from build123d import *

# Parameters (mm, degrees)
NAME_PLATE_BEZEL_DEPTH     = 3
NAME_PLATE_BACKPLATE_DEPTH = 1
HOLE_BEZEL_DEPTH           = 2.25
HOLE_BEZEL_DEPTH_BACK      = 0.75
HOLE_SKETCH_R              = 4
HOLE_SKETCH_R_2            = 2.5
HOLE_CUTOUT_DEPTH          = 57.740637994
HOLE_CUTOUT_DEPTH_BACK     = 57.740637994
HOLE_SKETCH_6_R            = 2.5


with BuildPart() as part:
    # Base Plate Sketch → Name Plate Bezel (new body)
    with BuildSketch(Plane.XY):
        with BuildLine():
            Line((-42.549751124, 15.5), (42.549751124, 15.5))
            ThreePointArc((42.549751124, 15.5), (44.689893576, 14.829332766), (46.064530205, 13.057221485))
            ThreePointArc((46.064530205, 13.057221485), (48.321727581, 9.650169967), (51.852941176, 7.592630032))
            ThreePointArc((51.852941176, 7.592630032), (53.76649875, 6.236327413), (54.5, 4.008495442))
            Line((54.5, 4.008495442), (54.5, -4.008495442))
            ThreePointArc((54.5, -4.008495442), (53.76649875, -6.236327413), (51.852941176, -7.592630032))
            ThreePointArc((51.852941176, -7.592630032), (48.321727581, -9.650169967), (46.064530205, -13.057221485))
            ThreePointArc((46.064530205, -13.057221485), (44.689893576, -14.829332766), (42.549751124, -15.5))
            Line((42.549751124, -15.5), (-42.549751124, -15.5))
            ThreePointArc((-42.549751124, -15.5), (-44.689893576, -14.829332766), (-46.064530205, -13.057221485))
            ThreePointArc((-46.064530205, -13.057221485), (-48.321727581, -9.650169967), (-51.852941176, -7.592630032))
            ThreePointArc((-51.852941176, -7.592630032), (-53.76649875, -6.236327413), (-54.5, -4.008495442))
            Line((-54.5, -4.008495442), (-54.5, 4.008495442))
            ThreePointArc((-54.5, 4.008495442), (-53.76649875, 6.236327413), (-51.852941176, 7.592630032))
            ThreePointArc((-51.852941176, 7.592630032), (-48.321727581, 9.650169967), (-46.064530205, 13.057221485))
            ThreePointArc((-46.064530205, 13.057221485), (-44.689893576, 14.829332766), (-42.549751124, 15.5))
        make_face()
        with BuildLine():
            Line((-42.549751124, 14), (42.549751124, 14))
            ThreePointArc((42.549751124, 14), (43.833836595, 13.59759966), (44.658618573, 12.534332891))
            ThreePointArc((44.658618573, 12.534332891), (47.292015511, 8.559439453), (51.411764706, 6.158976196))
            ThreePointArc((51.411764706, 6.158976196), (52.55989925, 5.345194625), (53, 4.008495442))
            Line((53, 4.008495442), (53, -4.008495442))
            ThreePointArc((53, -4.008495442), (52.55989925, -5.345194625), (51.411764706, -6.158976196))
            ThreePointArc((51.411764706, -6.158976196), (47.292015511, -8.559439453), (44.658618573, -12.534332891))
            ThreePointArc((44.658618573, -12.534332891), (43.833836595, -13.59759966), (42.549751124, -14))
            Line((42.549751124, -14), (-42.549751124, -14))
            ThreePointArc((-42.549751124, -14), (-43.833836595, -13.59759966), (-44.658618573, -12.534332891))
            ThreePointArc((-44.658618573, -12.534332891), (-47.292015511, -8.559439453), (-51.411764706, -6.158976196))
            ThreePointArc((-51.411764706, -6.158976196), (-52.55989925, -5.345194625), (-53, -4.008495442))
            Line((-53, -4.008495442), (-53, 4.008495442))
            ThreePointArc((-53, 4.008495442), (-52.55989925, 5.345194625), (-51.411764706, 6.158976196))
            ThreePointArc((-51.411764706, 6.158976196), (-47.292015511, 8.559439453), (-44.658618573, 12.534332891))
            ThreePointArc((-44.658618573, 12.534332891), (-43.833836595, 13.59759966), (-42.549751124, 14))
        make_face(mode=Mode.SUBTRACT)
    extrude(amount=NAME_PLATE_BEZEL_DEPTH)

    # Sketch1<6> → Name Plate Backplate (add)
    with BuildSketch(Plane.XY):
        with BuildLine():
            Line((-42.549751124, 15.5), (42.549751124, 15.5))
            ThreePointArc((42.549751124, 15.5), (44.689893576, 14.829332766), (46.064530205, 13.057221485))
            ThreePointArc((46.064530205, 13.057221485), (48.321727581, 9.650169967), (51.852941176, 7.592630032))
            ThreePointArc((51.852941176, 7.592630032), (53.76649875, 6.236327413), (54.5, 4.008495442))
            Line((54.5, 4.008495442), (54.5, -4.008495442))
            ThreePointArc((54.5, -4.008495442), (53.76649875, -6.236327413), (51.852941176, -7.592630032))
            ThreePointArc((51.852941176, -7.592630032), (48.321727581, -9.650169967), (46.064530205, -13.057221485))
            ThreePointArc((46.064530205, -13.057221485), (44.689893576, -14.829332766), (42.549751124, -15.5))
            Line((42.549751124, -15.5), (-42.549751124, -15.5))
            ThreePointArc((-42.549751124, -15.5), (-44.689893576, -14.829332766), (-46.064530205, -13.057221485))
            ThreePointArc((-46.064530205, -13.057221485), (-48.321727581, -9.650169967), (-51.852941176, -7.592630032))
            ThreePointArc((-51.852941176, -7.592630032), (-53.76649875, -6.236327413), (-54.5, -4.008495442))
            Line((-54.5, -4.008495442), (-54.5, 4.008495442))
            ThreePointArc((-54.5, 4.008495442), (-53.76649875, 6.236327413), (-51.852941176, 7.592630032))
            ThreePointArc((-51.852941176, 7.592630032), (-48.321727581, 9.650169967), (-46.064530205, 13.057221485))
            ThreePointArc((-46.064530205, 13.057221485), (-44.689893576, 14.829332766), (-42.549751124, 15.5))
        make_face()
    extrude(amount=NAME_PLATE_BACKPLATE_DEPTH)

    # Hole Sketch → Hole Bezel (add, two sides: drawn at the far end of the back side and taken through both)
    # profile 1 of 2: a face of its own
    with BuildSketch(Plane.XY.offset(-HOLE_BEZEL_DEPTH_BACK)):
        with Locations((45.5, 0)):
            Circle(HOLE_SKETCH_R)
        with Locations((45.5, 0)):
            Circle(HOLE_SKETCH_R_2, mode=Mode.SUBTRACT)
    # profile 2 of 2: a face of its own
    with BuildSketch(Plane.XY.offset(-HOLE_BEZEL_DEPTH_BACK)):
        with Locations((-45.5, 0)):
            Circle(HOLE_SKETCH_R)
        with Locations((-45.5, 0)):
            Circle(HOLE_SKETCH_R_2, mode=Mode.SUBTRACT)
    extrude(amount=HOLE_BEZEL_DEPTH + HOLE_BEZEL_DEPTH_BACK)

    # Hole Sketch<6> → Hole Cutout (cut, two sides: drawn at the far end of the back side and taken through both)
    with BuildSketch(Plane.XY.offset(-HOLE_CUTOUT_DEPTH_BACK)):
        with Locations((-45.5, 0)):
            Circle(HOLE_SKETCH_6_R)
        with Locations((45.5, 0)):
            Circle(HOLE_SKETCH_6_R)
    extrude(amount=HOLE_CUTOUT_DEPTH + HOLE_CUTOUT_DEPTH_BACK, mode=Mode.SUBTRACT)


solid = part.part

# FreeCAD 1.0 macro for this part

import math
import FreeCAD as App
import Part
import Sketcher
from FreeCAD import Vector
Q = App.Units.Quantity

doc = App.newDocument("Part")
params = doc.addObject("Spreadsheet::Sheet", "Params")
for row, (alias, value) in enumerate([
    ("sketch1_radius", "9 mm"),
    ("sketch1_radius2", "10.5 mm"),
    ("sketch1_radius3", "3.75 mm"),
    ("pad1_length", "3 mm"),
    ("sketch2_radius", "9 mm"),
    ("sketch2_radius2", "3.75 mm"),
    ("pad2_length", "1 mm"),
    ("sketch3_diameter", "8 mm"),
    ("sketch3_diameter2", "5 mm"),
    ("pad3_length", "2.25 mm"),
    ("pad3_length2", "0.75 mm"),
    ("sketch4_diameter", "5 mm"),
], start=1):
    params.set(f"A{row}", alias)
    params.set(f"B{row}", "=" + value)
    params.setAlias(f"B{row}", alias)

body = doc.addObject("PartDesign::Body", "Body")

# Sketch on XY plane
sketch1 = body.newObject("Sketcher::SketchObject", "Sketch")
sketch1.AttachmentSupport = (doc.getObject("XY_Plane"), [""])
sketch1.MapMode = "FlatFace"
sketch1.addGeometry([
    Part.LineSegment(Vector(42.5, 15.5, 0), Vector(-42.5, 15.5, 0)),  # 0
    Part.ArcOfCircle(Part.Circle(Vector(-42.5, 11.7, 0), Vector(0, 0, 1), 3.8), math.radians(90), math.radians(160)),  # 1
    Part.ArcOfCircle(Part.Circle(Vector(-54.5, 16.2, 0), Vector(0, 0, 1), 9), math.radians(-73), math.radians(-20)),  # 2
    Part.ArcOfCircle(Part.Circle(Vector(-50.8, 4, 0), Vector(0, 0, 1), 3.7), math.radians(107), math.radians(180)),  # 3
    Part.LineSegment(Vector(-54.5, 4, 0), Vector(-54.5, -4, 0)),  # 4
    Part.ArcOfCircle(Part.Circle(Vector(-50.8, -4, 0), Vector(0, 0, 1), 3.7), math.radians(180), math.radians(253)),  # 5
    Part.ArcOfCircle(Part.Circle(Vector(-54.5, -16.2, 0), Vector(0, 0, 1), 9), math.radians(20), math.radians(73)),  # 6
    Part.ArcOfCircle(Part.Circle(Vector(-42.5, -11.7, 0), Vector(0, 0, 1), 3.8), math.radians(-160), math.radians(-90)),  # 7
    Part.LineSegment(Vector(-42.5, -15.5, 0), Vector(42.5, -15.5, 0)),  # 8
    Part.ArcOfCircle(Part.Circle(Vector(42.5, -11.7, 0), Vector(0, 0, 1), 3.8), math.radians(-90), math.radians(-20)),  # 9
    Part.ArcOfCircle(Part.Circle(Vector(54.5, -16.2, 0), Vector(0, 0, 1), 9), math.radians(107), math.radians(160)),  # 10
    Part.ArcOfCircle(Part.Circle(Vector(50.8, -4, 0), Vector(0, 0, 1), 3.7), math.radians(-73), math.radians(0)),  # 11
    Part.LineSegment(Vector(54.5, -4, 0), Vector(54.5, 4, 0)),  # 12
    Part.ArcOfCircle(Part.Circle(Vector(50.8, 4, 0), Vector(0, 0, 1), 3.7), math.radians(0), math.radians(73)),  # 13
    Part.ArcOfCircle(Part.Circle(Vector(54.5, 16.2, 0), Vector(0, 0, 1), 9), math.radians(-160), math.radians(-107)),  # 14
    Part.ArcOfCircle(Part.Circle(Vector(42.5, 11.7, 0), Vector(0, 0, 1), 3.8), math.radians(20), math.radians(90)),  # 15
    Part.LineSegment(Vector(-42.5, 14, 0), Vector(42.5, 14, 0)),  # 16
    Part.ArcOfCircle(Part.Circle(Vector(42.5, 11.8, 0), Vector(0, 0, 1), 2.2), math.radians(20), math.radians(90)),  # 17
    Part.ArcOfCircle(Part.Circle(Vector(54.5, 16.2, 0), Vector(0, 0, 1), 10.5), math.radians(-160), math.radians(-107)),  # 18
    Part.ArcOfCircle(Part.Circle(Vector(50.8, 4, 0), Vector(0, 0, 1), 2.2), math.radians(0), math.radians(73)),  # 19
    Part.LineSegment(Vector(53, 4, 0), Vector(53, -4, 0)),  # 20
    Part.ArcOfCircle(Part.Circle(Vector(50.8, -4, 0), Vector(0, 0, 1), 2.2), math.radians(-73), math.radians(0)),  # 21
    Part.ArcOfCircle(Part.Circle(Vector(54.5, -16.2, 0), Vector(0, 0, 1), 10.5), math.radians(107), math.radians(160)),  # 22
    Part.ArcOfCircle(Part.Circle(Vector(42.5, -11.8, 0), Vector(0, 0, 1), 2.2), math.radians(-90), math.radians(-20)),  # 23
    Part.LineSegment(Vector(42.5, -14, 0), Vector(-42.5, -14, 0)),  # 24
    Part.ArcOfCircle(Part.Circle(Vector(-42.5, -11.8, 0), Vector(0, 0, 1), 2.2), math.radians(-160), math.radians(-90)),  # 25
    Part.ArcOfCircle(Part.Circle(Vector(-54.5, -16.2, 0), Vector(0, 0, 1), 10.5), math.radians(20), math.radians(73)),  # 26
    Part.ArcOfCircle(Part.Circle(Vector(-50.8, -4, 0), Vector(0, 0, 1), 2.2), math.radians(180), math.radians(253)),  # 27
    Part.LineSegment(Vector(-53, -4, 0), Vector(-53, 4, 0)),  # 28
    Part.ArcOfCircle(Part.Circle(Vector(-50.8, 4, 0), Vector(0, 0, 1), 2.2), math.radians(107), math.radians(180)),  # 29
    Part.ArcOfCircle(Part.Circle(Vector(-54.5, 16.2, 0), Vector(0, 0, 1), 10.5), math.radians(-73), math.radians(-20)),  # 30
    Part.ArcOfCircle(Part.Circle(Vector(-42.5, 11.8, 0), Vector(0, 0, 1), 2.2), math.radians(90), math.radians(160)),  # 31
], False)
sketch1.addConstraint([
    Sketcher.Constraint("Tangent", 0, 2, 1, 1),
    Sketcher.Constraint("Tangent", 1, 2, 2, 2),
    Sketcher.Constraint("Tangent", 2, 1, 3, 1),
    Sketcher.Constraint("Tangent", 3, 2, 4, 1),
    Sketcher.Constraint("Tangent", 4, 2, 5, 1),
    Sketcher.Constraint("Tangent", 5, 2, 6, 2),
    Sketcher.Constraint("Tangent", 6, 1, 7, 1),
    Sketcher.Constraint("Tangent", 7, 2, 8, 1),
    Sketcher.Constraint("Tangent", 8, 2, 9, 1),
    Sketcher.Constraint("Tangent", 9, 2, 10, 2),
    Sketcher.Constraint("Tangent", 10, 1, 11, 1),
    Sketcher.Constraint("Tangent", 11, 2, 12, 1),
    Sketcher.Constraint("Tangent", 12, 2, 13, 1),
    Sketcher.Constraint("Tangent", 13, 2, 14, 2),
    Sketcher.Constraint("Tangent", 14, 1, 15, 1),
    Sketcher.Constraint("Tangent", 15, 2, 0, 1),
    Sketcher.Constraint("Tangent", 16, 2, 17, 2),
    Sketcher.Constraint("Tangent", 17, 1, 18, 1),
    Sketcher.Constraint("Tangent", 18, 2, 19, 2),
    Sketcher.Constraint("Tangent", 19, 1, 20, 1),
    Sketcher.Constraint("Tangent", 20, 2, 21, 2),
    Sketcher.Constraint("Tangent", 21, 1, 22, 1),
    Sketcher.Constraint("Tangent", 22, 2, 23, 2),
    Sketcher.Constraint("Tangent", 23, 1, 24, 1),
    Sketcher.Constraint("Tangent", 24, 2, 25, 2),
    Sketcher.Constraint("Tangent", 25, 1, 26, 1),
    Sketcher.Constraint("Tangent", 26, 2, 27, 2),
    Sketcher.Constraint("Tangent", 27, 1, 28, 1),
    Sketcher.Constraint("Tangent", 28, 2, 29, 2),
    Sketcher.Constraint("Tangent", 29, 1, 30, 1),
    Sketcher.Constraint("Tangent", 30, 2, 31, 2),
    Sketcher.Constraint("Tangent", 31, 1, 16, 1),
    Sketcher.Constraint("Horizontal", 0),
    Sketcher.Constraint("Vertical", 4),
    Sketcher.Constraint("Horizontal", 8),
    Sketcher.Constraint("Vertical", 12),
    Sketcher.Constraint("Horizontal", 16),
    Sketcher.Constraint("Vertical", 20),
    Sketcher.Constraint("Horizontal", 24),
    Sketcher.Constraint("Vertical", 28),
    Sketcher.Constraint("Coincident", 17, 3, 15, 3),
    Sketcher.Constraint("Coincident", 18, 3, 14, 3),
    Sketcher.Constraint("Coincident", 19, 3, 13, 3),
    Sketcher.Constraint("Coincident", 21, 3, 11, 3),
    Sketcher.Constraint("Coincident", 22, 3, 10, 3),
    Sketcher.Constraint("Coincident", 23, 3, 9, 3),
    Sketcher.Constraint("Coincident", 25, 3, 7, 3),
    Sketcher.Constraint("Coincident", 26, 3, 6, 3),
    Sketcher.Constraint("Coincident", 27, 3, 5, 3),
    Sketcher.Constraint("Coincident", 29, 3, 3, 3),
    Sketcher.Constraint("Coincident", 30, 3, 2, 3),
    Sketcher.Constraint("Equal", 1, 3),
    Sketcher.Constraint("Equal", 3, 5),
    Sketcher.Constraint("Equal", 2, 6),
    Sketcher.Constraint("Equal", 5, 7),
    Sketcher.Constraint("Equal", 7, 9),
    Sketcher.Constraint("Equal", 6, 10),
    Sketcher.Constraint("Equal", 9, 11),
    Sketcher.Constraint("Equal", 11, 13),
    Sketcher.Constraint("Equal", 10, 14),
    Sketcher.Constraint("Equal", 13, 15),
    Sketcher.Constraint("Equal", 29, 31),
    Sketcher.Constraint("Symmetric", 1, 3, 9, 3, -1, 1),
    Sketcher.Constraint("Symmetric", 3, 3, 11, 3, -1, 1),
    Sketcher.Constraint("Symmetric", 6, 3, 14, 3, -1, 1),
    Sketcher.Constraint("Symmetric", 6, 3, 10, 3, -2),
    Sketcher.Constraint("Vertical", 30, 3, 3, 2),
    Sketcher.Constraint("Radius", 2, Q("9 mm")),
    Sketcher.Constraint("Radius", 18, Q("10.5 mm")),
    Sketcher.Constraint("Radius", 1, Q("3.75 mm")),
    Sketcher.Constraint("DistanceY", -1, 1, 16, 2, Q("14 mm")),
    Sketcher.Constraint("DistanceX", -1, 1, 19, 1, Q("53 mm")),
    Sketcher.Constraint("DistanceY", 4, 2, 4, 1, Q("8.016991 mm")),
])
sketch1.setExpression("Constraints[67]", "Params.sketch1_radius")
sketch1.setExpression("Constraints[68]", "Params.sketch1_radius2")
sketch1.setExpression("Constraints[69]", "Params.sketch1_radius3")
pad1 = body.newObject("PartDesign::Pad", "Pad")
pad1.Profile = sketch1
pad1.setExpression("Length", "Params.pad1_length")

# Sketch on XY plane
sketch2 = body.newObject("Sketcher::SketchObject", "Sketch001")
sketch2.AttachmentSupport = (doc.getObject("XY_Plane"), [""])
sketch2.MapMode = "FlatFace"
sketch2.addGeometry([
    Part.LineSegment(Vector(42.5, 15.5, 0), Vector(-42.5, 15.5, 0)),  # 0
    Part.ArcOfCircle(Part.Circle(Vector(-42.5, 11.7, 0), Vector(0, 0, 1), 3.8), math.radians(90), math.radians(160)),  # 1
    Part.ArcOfCircle(Part.Circle(Vector(-54.5, 16.2, 0), Vector(0, 0, 1), 9), math.radians(-73), math.radians(-20)),  # 2
    Part.ArcOfCircle(Part.Circle(Vector(-50.8, 4, 0), Vector(0, 0, 1), 3.7), math.radians(107), math.radians(180)),  # 3
    Part.LineSegment(Vector(-54.5, 4, 0), Vector(-54.5, -4, 0)),  # 4
    Part.ArcOfCircle(Part.Circle(Vector(-50.8, -4, 0), Vector(0, 0, 1), 3.7), math.radians(180), math.radians(253)),  # 5
    Part.ArcOfCircle(Part.Circle(Vector(-54.5, -16.2, 0), Vector(0, 0, 1), 9), math.radians(20), math.radians(73)),  # 6
    Part.ArcOfCircle(Part.Circle(Vector(-42.5, -11.7, 0), Vector(0, 0, 1), 3.8), math.radians(-160), math.radians(-90)),  # 7
    Part.LineSegment(Vector(-42.5, -15.5, 0), Vector(42.5, -15.5, 0)),  # 8
    Part.ArcOfCircle(Part.Circle(Vector(42.5, -11.7, 0), Vector(0, 0, 1), 3.8), math.radians(-90), math.radians(-20)),  # 9
    Part.ArcOfCircle(Part.Circle(Vector(54.5, -16.2, 0), Vector(0, 0, 1), 9), math.radians(107), math.radians(160)),  # 10
    Part.ArcOfCircle(Part.Circle(Vector(50.8, -4, 0), Vector(0, 0, 1), 3.7), math.radians(-73), math.radians(0)),  # 11
    Part.LineSegment(Vector(54.5, -4, 0), Vector(54.5, 4, 0)),  # 12
    Part.ArcOfCircle(Part.Circle(Vector(50.8, 4, 0), Vector(0, 0, 1), 3.7), math.radians(0), math.radians(73)),  # 13
    Part.ArcOfCircle(Part.Circle(Vector(54.5, 16.2, 0), Vector(0, 0, 1), 9), math.radians(-160), math.radians(-107)),  # 14
    Part.ArcOfCircle(Part.Circle(Vector(42.5, 11.7, 0), Vector(0, 0, 1), 3.8), math.radians(20), math.radians(90)),  # 15
], False)
sketch2.addConstraint([
    Sketcher.Constraint("Tangent", 0, 2, 1, 1),
    Sketcher.Constraint("Tangent", 1, 2, 2, 2),
    Sketcher.Constraint("Tangent", 2, 1, 3, 1),
    Sketcher.Constraint("Tangent", 3, 2, 4, 1),
    Sketcher.Constraint("Tangent", 4, 2, 5, 1),
    Sketcher.Constraint("Tangent", 5, 2, 6, 2),
    Sketcher.Constraint("Tangent", 6, 1, 7, 1),
    Sketcher.Constraint("Tangent", 7, 2, 8, 1),
    Sketcher.Constraint("Tangent", 8, 2, 9, 1),
    Sketcher.Constraint("Tangent", 9, 2, 10, 2),
    Sketcher.Constraint("Tangent", 10, 1, 11, 1),
    Sketcher.Constraint("Tangent", 11, 2, 12, 1),
    Sketcher.Constraint("Tangent", 12, 2, 13, 1),
    Sketcher.Constraint("Tangent", 13, 2, 14, 2),
    Sketcher.Constraint("Tangent", 14, 1, 15, 1),
    Sketcher.Constraint("Tangent", 15, 2, 0, 1),
    Sketcher.Constraint("Horizontal", 0),
    Sketcher.Constraint("Vertical", 4),
    Sketcher.Constraint("Horizontal", 8),
    Sketcher.Constraint("Vertical", 12),
    Sketcher.Constraint("Equal", 1, 3),
    Sketcher.Constraint("Equal", 3, 5),
    Sketcher.Constraint("Equal", 2, 6),
    Sketcher.Constraint("Equal", 5, 7),
    Sketcher.Constraint("Equal", 7, 9),
    Sketcher.Constraint("Equal", 6, 10),
    Sketcher.Constraint("Equal", 9, 11),
    Sketcher.Constraint("Equal", 11, 13),
    Sketcher.Constraint("Equal", 10, 14),
    Sketcher.Constraint("Equal", 13, 15),
    Sketcher.Constraint("Symmetric", 1, 3, 9, 3, -1, 1),
    Sketcher.Constraint("Symmetric", 3, 3, 11, 3, -1, 1),
    Sketcher.Constraint("Symmetric", 6, 3, 14, 3, -1, 1),
    Sketcher.Constraint("Symmetric", 6, 3, 10, 3, -2),
    Sketcher.Constraint("Vertical", 6, 3, 3, 2),
    Sketcher.Constraint("Radius", 2, Q("9 mm")),
    Sketcher.Constraint("Radius", 1, Q("3.75 mm")),
    Sketcher.Constraint("DistanceX", 2, 3, -1, 1, Q("54.5 mm")),
    Sketcher.Constraint("DistanceY", -1, 1, 0, 2, Q("15.5 mm")),
    Sketcher.Constraint("DistanceY", 4, 2, 4, 1, Q("8.016991 mm")),
])
sketch2.setExpression("Constraints[35]", "Params.sketch2_radius")
sketch2.setExpression("Constraints[36]", "Params.sketch2_radius2")
pad2 = body.newObject("PartDesign::Pad", "Pad001")
pad2.Profile = sketch2
pad2.setExpression("Length", "Params.pad2_length")

# Sketch on XY plane
sketch3 = body.newObject("Sketcher::SketchObject", "Sketch002")
sketch3.AttachmentSupport = (doc.getObject("XY_Plane"), [""])
sketch3.MapMode = "FlatFace"
sketch3.addGeometry([
    Part.Circle(Vector(45.5, 0, 0), Vector(0, 0, 1), 4),
    Part.Circle(Vector(45.5, 0, 0), Vector(0, 0, 1), 2.5),
    Part.Circle(Vector(-45.5, 0, 0), Vector(0, 0, 1), 4),
    Part.Circle(Vector(-45.5, 0, 0), Vector(0, 0, 1), 2.5),
], False)
sketch3.addConstraint([
    Sketcher.Constraint("Coincident", 1, 3, 0, 3),
    Sketcher.Constraint("Coincident", 3, 3, 2, 3),
    Sketcher.Constraint("Equal", 0, 2),
    Sketcher.Constraint("Equal", 1, 3),
    Sketcher.Constraint("Symmetric", 0, 3, 2, 3, -1, 1),
    Sketcher.Constraint("PointOnObject", 0, 3, -1),
    Sketcher.Constraint("Diameter", 0, Q("8 mm")),
    Sketcher.Constraint("Diameter", 1, Q("5 mm")),
    Sketcher.Constraint("DistanceX", 2, 3, 0, 3, Q("91 mm")),
])
sketch3.setExpression("Constraints[6]", "Params.sketch3_diameter")
sketch3.setExpression("Constraints[7]", "Params.sketch3_diameter2")
pad3 = body.newObject("PartDesign::Pad", "Pad002")
pad3.Profile = sketch3
pad3.Type = "TwoLengths"
pad3.setExpression("Length", "Params.pad3_length")
pad3.setExpression("Length2", "Params.pad3_length2")

# Sketch on XY plane
sketch4 = body.newObject("Sketcher::SketchObject", "Sketch003")
sketch4.AttachmentSupport = (doc.getObject("XY_Plane"), [""])
sketch4.MapMode = "FlatFace"
sketch4.addGeometry([
    Part.Circle(Vector(-45.5, 0, 0), Vector(0, 0, 1), 2.5),
    Part.Circle(Vector(45.5, 0, 0), Vector(0, 0, 1), 2.5),
], False)
sketch4.addConstraint([
    Sketcher.Constraint("Equal", 0, 1),
    Sketcher.Constraint("Symmetric", 0, 3, 1, 3, -1, 1),
    Sketcher.Constraint("PointOnObject", 0, 3, -1),
    Sketcher.Constraint("Diameter", 0, Q("5 mm")),
    Sketcher.Constraint("DistanceX", 0, 3, 1, 3, Q("91 mm")),
])
sketch4.setExpression("Constraints[3]", "Params.sketch4_diameter")
pocket1 = body.newObject("PartDesign::Pocket", "Pocket")
pocket1.Profile = sketch4
pocket1.Type = "ThroughAll"
pocket1.Midplane = True

doc.recompute()
